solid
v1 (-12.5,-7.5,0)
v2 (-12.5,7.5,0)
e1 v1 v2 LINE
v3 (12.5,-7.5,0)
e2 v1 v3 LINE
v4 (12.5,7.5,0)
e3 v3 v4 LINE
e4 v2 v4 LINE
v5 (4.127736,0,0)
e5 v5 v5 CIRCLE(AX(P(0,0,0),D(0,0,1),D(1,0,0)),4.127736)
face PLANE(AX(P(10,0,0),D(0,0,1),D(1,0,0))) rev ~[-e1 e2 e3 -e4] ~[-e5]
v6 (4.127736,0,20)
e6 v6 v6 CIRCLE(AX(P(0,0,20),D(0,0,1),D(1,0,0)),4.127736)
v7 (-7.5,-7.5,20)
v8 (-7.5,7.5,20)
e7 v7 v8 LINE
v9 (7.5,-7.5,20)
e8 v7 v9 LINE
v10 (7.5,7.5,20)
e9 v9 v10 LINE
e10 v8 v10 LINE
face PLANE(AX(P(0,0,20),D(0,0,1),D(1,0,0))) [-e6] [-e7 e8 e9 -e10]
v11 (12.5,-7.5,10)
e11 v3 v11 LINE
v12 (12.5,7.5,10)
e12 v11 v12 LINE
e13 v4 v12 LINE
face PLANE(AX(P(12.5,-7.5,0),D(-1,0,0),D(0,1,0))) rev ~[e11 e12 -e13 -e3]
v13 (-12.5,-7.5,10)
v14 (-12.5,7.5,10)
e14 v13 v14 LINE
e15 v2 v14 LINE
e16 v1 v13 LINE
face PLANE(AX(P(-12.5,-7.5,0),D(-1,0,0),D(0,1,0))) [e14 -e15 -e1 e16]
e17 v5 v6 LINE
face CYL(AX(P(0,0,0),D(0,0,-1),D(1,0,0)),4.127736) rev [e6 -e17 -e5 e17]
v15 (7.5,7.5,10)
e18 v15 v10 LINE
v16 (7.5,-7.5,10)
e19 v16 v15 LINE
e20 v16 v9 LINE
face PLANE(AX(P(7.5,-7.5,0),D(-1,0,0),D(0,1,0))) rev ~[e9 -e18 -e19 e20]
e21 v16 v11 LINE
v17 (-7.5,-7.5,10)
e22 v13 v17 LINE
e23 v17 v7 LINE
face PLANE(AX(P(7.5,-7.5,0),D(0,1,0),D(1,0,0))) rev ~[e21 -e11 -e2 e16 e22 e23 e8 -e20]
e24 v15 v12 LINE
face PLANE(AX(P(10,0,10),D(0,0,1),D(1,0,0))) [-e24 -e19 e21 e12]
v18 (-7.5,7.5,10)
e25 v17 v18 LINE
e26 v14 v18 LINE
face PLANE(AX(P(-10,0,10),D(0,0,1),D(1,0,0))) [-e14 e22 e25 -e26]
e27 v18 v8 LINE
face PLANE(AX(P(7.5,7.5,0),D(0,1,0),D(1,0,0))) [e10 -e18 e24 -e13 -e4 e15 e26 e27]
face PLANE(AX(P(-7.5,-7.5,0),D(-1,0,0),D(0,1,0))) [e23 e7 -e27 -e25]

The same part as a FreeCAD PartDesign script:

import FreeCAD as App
import Part
import Sketcher
Q = App.Units.Quantity


def add_polygon(sketch, points):
    """Adds a closed chain of lines whose ends are joined by coincident constraints."""
    first, n = sketch.GeometryCount, len(points)
    for a, b in zip(points, points[1:] + points[:1]):
        sketch.addGeometry(Part.LineSegment(App.Vector(*a, 0), App.Vector(*b, 0)), False)
    for i in range(n):
        sketch.addConstraint(Sketcher.Constraint("Coincident", first + i, 2, first + (i + 1) % n, 1))

doc = App.newDocument("Part")
body = doc.addObject("PartDesign::Body", "Body")

sketch1 = body.newObject("Sketcher::SketchObject", "Sketch")
sketch1.AttachmentSupport = (doc.getObject("XY_Plane"), [""])
sketch1.MapMode = "FlatFace"
add_polygon(sketch1, [(-7.5, 7.5), (-7.5, -7.5), (7.5, -7.5), (7.5, 7.5)])
sketch1.addGeometry(Part.Circle(App.Vector(0, 0, 0), App.Vector(0, 0, 1), 4.127736), False)
sketch1.addConstraint([
    Sketcher.Constraint("Vertical", 0),
    Sketcher.Constraint("Horizontal", 1),
    Sketcher.Constraint("Vertical", 2),
    Sketcher.Constraint("Horizontal", 3),
    Sketcher.Constraint("Coincident", 4, 3, -1, 1),
    Sketcher.Constraint("Symmetric", 0, 2, 2, 2, -1, 1),
    Sketcher.Constraint("Equal", 3, 0),
    Sketcher.Constraint("DistanceX", 1, 1, 1, 2, Q("15 mm")),
    Sketcher.Constraint("Diameter", 4, Q("8.255472 mm")),
])
pad1 = body.newObject("PartDesign::Pad", "Pad")
pad1.Profile = sketch1
pad1.Length = 20

sketch2 = body.newObject("Sketcher::SketchObject", "Sketch001")
sketch2.AttachmentSupport = (doc.getObject("XY_Plane"), [""])
sketch2.MapMode = "FlatFace"
add_polygon(sketch2, [(7.5, 7.5), (7.5, -7.5), (12.5, -7.5), (12.5, 7.5)])
add_polygon(sketch2, [(-12.5, 7.5), (-12.5, -7.5), (-7.5, -7.5), (-7.5, 7.5)])
sketch2.addConstraint([
    Sketcher.Constraint("Vertical", 0),
    Sketcher.Constraint("Horizontal", 1),
    Sketcher.Constraint("Vertical", 2),
    Sketcher.Constraint("Horizontal", 3),
    Sketcher.Constraint("Vertical", 4),
    Sketcher.Constraint("Horizontal", 5),
    Sketcher.Constraint("Vertical", 6),
    Sketcher.Constraint("Horizontal", 7),
    Sketcher.Constraint("Symmetric", 2, 2, 4, 2, -1, 1),
    Sketcher.Constraint("Symmetric", 0, 2, 6, 2, -1, 1),
    Sketcher.Constraint("Horizontal", 1, 2, 4, 2),
    Sketcher.Constraint("DistanceX", 1, 1, 1, 2, Q("5 mm")),
    Sketcher.Constraint("DistanceY", 0, 2, 0, 1, Q("15 mm")),
    Sketcher.Constraint("DistanceX", 4, 2, 0, 2, Q("20 mm")),
])
pad2 = body.newObject("PartDesign::Pad", "Pad001")
pad2.Profile = sketch2
pad2.Length = 10

doc.recompute()
